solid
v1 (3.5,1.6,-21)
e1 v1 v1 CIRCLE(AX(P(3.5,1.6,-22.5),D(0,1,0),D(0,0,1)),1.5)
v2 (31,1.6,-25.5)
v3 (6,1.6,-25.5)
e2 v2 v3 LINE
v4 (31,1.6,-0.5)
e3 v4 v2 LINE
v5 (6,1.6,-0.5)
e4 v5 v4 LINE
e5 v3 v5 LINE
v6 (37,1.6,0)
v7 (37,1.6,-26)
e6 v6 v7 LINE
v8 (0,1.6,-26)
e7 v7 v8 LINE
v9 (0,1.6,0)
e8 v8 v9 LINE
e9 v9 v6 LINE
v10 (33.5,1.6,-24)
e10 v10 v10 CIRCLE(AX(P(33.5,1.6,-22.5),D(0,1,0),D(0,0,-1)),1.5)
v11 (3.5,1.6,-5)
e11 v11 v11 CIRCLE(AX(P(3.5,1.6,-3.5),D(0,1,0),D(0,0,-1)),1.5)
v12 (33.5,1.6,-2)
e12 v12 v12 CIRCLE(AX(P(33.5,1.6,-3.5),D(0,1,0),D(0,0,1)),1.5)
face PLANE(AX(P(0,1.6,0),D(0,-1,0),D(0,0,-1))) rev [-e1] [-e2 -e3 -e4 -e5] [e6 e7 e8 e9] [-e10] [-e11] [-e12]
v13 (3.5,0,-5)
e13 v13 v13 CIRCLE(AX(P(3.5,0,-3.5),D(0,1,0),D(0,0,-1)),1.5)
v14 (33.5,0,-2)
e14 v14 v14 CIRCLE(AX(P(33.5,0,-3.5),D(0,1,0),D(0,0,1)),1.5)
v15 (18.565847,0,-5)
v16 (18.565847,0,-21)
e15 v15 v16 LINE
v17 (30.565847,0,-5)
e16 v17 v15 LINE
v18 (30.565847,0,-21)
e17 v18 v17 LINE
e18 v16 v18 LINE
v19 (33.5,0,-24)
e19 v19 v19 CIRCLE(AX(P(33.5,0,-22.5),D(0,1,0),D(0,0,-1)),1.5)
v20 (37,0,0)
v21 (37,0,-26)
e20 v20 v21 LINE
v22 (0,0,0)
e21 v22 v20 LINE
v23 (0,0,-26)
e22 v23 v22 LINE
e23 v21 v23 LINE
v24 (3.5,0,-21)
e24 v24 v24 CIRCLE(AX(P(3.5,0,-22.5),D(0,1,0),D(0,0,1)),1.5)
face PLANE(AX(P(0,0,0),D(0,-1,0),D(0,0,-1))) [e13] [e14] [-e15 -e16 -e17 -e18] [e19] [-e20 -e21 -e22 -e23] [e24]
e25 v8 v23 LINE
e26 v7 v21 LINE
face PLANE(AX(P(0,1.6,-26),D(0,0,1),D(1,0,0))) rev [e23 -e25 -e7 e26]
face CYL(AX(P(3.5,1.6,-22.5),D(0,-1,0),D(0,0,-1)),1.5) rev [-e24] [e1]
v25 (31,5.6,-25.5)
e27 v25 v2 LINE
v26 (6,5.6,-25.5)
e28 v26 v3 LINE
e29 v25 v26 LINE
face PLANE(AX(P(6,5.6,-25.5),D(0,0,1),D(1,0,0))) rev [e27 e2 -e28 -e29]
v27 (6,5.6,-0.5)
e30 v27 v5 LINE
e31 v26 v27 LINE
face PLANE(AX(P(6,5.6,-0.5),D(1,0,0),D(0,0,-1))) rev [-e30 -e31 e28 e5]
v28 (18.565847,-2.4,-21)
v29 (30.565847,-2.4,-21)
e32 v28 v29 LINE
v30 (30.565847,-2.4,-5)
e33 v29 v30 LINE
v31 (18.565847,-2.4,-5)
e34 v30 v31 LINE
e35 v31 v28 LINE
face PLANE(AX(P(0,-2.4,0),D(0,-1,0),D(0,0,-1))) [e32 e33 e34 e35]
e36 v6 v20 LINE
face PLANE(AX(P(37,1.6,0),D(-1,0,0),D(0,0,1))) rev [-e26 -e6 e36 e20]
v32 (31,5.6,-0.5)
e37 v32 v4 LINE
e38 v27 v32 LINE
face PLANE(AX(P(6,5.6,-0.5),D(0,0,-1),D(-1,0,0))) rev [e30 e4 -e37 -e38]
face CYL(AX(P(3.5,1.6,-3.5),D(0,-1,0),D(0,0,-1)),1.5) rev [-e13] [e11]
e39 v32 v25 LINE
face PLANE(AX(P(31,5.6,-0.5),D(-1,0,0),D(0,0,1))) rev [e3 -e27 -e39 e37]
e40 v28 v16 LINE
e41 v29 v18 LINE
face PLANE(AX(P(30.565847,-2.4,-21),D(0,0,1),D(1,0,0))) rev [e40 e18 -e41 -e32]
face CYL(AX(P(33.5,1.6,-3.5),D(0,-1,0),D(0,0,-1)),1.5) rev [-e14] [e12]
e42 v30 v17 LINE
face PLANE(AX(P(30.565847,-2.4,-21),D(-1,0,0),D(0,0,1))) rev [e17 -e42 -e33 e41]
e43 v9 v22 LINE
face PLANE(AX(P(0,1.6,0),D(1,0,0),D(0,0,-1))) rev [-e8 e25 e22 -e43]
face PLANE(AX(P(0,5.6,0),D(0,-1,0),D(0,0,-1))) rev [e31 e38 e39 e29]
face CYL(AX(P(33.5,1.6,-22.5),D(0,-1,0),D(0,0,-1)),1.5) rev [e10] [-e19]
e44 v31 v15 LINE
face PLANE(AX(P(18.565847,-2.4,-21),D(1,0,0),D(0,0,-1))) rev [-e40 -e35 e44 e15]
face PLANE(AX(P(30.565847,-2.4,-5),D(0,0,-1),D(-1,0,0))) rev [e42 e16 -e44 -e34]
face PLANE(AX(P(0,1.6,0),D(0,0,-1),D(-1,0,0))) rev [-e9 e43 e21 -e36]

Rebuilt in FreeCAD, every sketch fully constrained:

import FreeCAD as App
import Part
import Sketcher
from FreeCAD import Vector
Q = App.Units.Quantity


def add_polygon(sketch, points):
    """Adds a closed chain of lines whose ends are joined by coincident constraints."""
    first, n = sketch.GeometryCount, len(points)
    for a, b in zip(points, points[1:] + points[:1]):
        sketch.addGeometry(Part.LineSegment(App.Vector(*a, 0), App.Vector(*b, 0)), False)
    for i in range(n):
        sketch.addConstraint(Sketcher.Constraint("Coincident", first + i, 2, first + (i + 1) % n, 1))

doc = App.newDocument("Part")
params = doc.addObject("Spreadsheet::Sheet", "Params")
for row, (alias, value) in enumerate([
    ("sketch1_diameter", "3 mm"),
    ("sketch1_width", "37 mm"),
    ("sketch1_height", "26 mm"),
    ("pad1_length", "1.6 mm"),
    ("sketch2_width", "25 mm"),
    ("pad2_length", "4 mm"),
    ("sketch3_width", "12 mm"),
    ("sketch3_height", "16 mm"),
    ("pad3_length", "2.4 mm"),
], start=1):
    params.set(f"A{row}", alias)
    params.set(f"B{row}", "=" + value)
    params.setAlias(f"B{row}", alias)

body = doc.addObject("PartDesign::Body", "Body")

# Sketch on XZ plane
sketch1 = doc.addObject("Sketcher::SketchObject", "Sketch")
body.addObject(sketch1)
sketch1.AttachmentSupport = (doc.XZ_Plane, [""])
sketch1.MapMode = "FlatFace"
add_polygon(sketch1, [(0, -26), (0, 0), (37, 0), (37, -26)])  # lines 0-3
sketch1.addGeometry(Part.Circle(Vector(3.5, -3.5, 0), Vector(0, 0, 1), 1.5), False)  # 4
sketch1.addGeometry(Part.Circle(Vector(33.5, -3.5, 0), Vector(0, 0, 1), 1.5), False)  # 5
sketch1.addGeometry(Part.Circle(Vector(3.5, -22.5, 0), Vector(0, 0, 1), 1.5), False)  # 6
sketch1.addGeometry(Part.Circle(Vector(33.5, -22.5, 0), Vector(0, 0, 1), 1.5), False)  # 7
sketch1.addConstraint([
    Sketcher.Constraint("Vertical", 0),
    Sketcher.Constraint("Horizontal", 1),
    Sketcher.Constraint("Vertical", 2),
    Sketcher.Constraint("Horizontal", 3),
    Sketcher.Constraint("Coincident", 0, 2, -1, 1),
    Sketcher.Constraint("Equal", 4, 5),
    Sketcher.Constraint("Equal", 5, 6),
    Sketcher.Constraint("Equal", 6, 7),
    Sketcher.Constraint("Horizontal", 4, 3, 5, 3),
    Sketcher.Constraint("Horizontal", 6, 3, 7, 3),
    Sketcher.Constraint("Vertical", 4, 3, 6, 3),
    Sketcher.Constraint("Vertical", 5, 3, 7, 3),
    Sketcher.Constraint("Diameter", 4, Q("3 mm")),
    Sketcher.Constraint("DistanceX", 1, 1, 1, 2, Q("37 mm")),
    Sketcher.Constraint("DistanceY", 0, 1, 0, 2, Q("26 mm")),
    Sketcher.Constraint("DistanceX", 4, 3, 5, 3, Q("30 mm")),
    Sketcher.Constraint("DistanceY", 6, 3, 4, 3, Q("19 mm")),
    Sketcher.Constraint("DistanceX", -1, 1, 4, 3, Q("3.5 mm")),
    Sketcher.Constraint("DistanceY", 4, 3, -1, 1, Q("3.5 mm")),
])
sketch1.setExpression("Constraints[16]", "Params.sketch1_diameter")
sketch1.setExpression("Constraints[17]", "Params.sketch1_width")
sketch1.setExpression("Constraints[18]", "Params.sketch1_height")
pad1 = doc.addObject("PartDesign::Pad", "Pad")
body.addObject(pad1)
pad1.Profile = sketch1
pad1.setExpression("Length", "Params.pad1_length")
pad1.Reversed = True

# Sketch on XZ plane
sketch2 = doc.addObject("Sketcher::SketchObject", "Sketch001")
body.addObject(sketch2)
sketch2.AttachmentSupport = (doc.XZ_Plane, [""])
sketch2.MapMode = "FlatFace"
sketch2.AttachmentOffset = App.Placement(Vector(0, 0, -1.6), App.Rotation())
add_polygon(sketch2, [(6, -26), (6, 0), (31, 0), (31, -26)])  # lines 0-3
sketch2.addConstraint([
    Sketcher.Constraint("Vertical", 0),
    Sketcher.Constraint("Horizontal", 1),
    Sketcher.Constraint("Vertical", 2),
    Sketcher.Constraint("Horizontal", 3),
    Sketcher.Constraint("Equal", 3, 0),
    Sketcher.Constraint("DistanceX", 1, 1, 1, 2, Q("25 mm")),
    Sketcher.Constraint("DistanceX", -1, 1, 0, 2, Q("6 mm")),
    Sketcher.Constraint("DistanceY", 0, 2, -1, 1, Q("0.5 mm")),
])
sketch2.setExpression("Constraints[9]", "Params.sketch2_width")
pad2 = doc.addObject("PartDesign::Pad", "Pad001")
body.addObject(pad2)
pad2.Profile = sketch2
pad2.setExpression("Length", "Params.pad2_length")
pad2.Reversed = True

# Sketch on XZ plane
sketch3 = doc.addObject("Sketcher::SketchObject", "Sketch002")
body.addObject(sketch3)
sketch3.AttachmentSupport = (doc.XZ_Plane, [""])
sketch3.MapMode = "FlatFace"
add_polygon(sketch3, [(19, -5), (19, -21), (31, -21), (31, -5)])  # lines 0-3
sketch3.addConstraint([
    Sketcher.Constraint("Vertical", 0),
    Sketcher.Constraint("Horizontal", 1),
    Sketcher.Constraint("Vertical", 2),
    Sketcher.Constraint("Horizontal", 3),
    Sketcher.Constraint("DistanceX", 1, 1, 1, 2, Q("12 mm")),
    Sketcher.Constraint("DistanceY", 0, 2, 0, 1, Q("16 mm")),
    Sketcher.Constraint("DistanceY", 0, 2, -1, 1, Q("21 mm")),
    Sketcher.Constraint("DistanceX", -1, 1, 0, 2, Q("18.565847 mm")),
])
sketch3.setExpression("Constraints[8]", "Params.sketch3_width")
sketch3.setExpression("Constraints[9]", "Params.sketch3_height")
pad3 = doc.addObject("PartDesign::Pad", "Pad002")
body.addObject(pad3)
pad3.Profile = sketch3
pad3.setExpression("Length", "Params.pad3_length")

doc.recompute()
